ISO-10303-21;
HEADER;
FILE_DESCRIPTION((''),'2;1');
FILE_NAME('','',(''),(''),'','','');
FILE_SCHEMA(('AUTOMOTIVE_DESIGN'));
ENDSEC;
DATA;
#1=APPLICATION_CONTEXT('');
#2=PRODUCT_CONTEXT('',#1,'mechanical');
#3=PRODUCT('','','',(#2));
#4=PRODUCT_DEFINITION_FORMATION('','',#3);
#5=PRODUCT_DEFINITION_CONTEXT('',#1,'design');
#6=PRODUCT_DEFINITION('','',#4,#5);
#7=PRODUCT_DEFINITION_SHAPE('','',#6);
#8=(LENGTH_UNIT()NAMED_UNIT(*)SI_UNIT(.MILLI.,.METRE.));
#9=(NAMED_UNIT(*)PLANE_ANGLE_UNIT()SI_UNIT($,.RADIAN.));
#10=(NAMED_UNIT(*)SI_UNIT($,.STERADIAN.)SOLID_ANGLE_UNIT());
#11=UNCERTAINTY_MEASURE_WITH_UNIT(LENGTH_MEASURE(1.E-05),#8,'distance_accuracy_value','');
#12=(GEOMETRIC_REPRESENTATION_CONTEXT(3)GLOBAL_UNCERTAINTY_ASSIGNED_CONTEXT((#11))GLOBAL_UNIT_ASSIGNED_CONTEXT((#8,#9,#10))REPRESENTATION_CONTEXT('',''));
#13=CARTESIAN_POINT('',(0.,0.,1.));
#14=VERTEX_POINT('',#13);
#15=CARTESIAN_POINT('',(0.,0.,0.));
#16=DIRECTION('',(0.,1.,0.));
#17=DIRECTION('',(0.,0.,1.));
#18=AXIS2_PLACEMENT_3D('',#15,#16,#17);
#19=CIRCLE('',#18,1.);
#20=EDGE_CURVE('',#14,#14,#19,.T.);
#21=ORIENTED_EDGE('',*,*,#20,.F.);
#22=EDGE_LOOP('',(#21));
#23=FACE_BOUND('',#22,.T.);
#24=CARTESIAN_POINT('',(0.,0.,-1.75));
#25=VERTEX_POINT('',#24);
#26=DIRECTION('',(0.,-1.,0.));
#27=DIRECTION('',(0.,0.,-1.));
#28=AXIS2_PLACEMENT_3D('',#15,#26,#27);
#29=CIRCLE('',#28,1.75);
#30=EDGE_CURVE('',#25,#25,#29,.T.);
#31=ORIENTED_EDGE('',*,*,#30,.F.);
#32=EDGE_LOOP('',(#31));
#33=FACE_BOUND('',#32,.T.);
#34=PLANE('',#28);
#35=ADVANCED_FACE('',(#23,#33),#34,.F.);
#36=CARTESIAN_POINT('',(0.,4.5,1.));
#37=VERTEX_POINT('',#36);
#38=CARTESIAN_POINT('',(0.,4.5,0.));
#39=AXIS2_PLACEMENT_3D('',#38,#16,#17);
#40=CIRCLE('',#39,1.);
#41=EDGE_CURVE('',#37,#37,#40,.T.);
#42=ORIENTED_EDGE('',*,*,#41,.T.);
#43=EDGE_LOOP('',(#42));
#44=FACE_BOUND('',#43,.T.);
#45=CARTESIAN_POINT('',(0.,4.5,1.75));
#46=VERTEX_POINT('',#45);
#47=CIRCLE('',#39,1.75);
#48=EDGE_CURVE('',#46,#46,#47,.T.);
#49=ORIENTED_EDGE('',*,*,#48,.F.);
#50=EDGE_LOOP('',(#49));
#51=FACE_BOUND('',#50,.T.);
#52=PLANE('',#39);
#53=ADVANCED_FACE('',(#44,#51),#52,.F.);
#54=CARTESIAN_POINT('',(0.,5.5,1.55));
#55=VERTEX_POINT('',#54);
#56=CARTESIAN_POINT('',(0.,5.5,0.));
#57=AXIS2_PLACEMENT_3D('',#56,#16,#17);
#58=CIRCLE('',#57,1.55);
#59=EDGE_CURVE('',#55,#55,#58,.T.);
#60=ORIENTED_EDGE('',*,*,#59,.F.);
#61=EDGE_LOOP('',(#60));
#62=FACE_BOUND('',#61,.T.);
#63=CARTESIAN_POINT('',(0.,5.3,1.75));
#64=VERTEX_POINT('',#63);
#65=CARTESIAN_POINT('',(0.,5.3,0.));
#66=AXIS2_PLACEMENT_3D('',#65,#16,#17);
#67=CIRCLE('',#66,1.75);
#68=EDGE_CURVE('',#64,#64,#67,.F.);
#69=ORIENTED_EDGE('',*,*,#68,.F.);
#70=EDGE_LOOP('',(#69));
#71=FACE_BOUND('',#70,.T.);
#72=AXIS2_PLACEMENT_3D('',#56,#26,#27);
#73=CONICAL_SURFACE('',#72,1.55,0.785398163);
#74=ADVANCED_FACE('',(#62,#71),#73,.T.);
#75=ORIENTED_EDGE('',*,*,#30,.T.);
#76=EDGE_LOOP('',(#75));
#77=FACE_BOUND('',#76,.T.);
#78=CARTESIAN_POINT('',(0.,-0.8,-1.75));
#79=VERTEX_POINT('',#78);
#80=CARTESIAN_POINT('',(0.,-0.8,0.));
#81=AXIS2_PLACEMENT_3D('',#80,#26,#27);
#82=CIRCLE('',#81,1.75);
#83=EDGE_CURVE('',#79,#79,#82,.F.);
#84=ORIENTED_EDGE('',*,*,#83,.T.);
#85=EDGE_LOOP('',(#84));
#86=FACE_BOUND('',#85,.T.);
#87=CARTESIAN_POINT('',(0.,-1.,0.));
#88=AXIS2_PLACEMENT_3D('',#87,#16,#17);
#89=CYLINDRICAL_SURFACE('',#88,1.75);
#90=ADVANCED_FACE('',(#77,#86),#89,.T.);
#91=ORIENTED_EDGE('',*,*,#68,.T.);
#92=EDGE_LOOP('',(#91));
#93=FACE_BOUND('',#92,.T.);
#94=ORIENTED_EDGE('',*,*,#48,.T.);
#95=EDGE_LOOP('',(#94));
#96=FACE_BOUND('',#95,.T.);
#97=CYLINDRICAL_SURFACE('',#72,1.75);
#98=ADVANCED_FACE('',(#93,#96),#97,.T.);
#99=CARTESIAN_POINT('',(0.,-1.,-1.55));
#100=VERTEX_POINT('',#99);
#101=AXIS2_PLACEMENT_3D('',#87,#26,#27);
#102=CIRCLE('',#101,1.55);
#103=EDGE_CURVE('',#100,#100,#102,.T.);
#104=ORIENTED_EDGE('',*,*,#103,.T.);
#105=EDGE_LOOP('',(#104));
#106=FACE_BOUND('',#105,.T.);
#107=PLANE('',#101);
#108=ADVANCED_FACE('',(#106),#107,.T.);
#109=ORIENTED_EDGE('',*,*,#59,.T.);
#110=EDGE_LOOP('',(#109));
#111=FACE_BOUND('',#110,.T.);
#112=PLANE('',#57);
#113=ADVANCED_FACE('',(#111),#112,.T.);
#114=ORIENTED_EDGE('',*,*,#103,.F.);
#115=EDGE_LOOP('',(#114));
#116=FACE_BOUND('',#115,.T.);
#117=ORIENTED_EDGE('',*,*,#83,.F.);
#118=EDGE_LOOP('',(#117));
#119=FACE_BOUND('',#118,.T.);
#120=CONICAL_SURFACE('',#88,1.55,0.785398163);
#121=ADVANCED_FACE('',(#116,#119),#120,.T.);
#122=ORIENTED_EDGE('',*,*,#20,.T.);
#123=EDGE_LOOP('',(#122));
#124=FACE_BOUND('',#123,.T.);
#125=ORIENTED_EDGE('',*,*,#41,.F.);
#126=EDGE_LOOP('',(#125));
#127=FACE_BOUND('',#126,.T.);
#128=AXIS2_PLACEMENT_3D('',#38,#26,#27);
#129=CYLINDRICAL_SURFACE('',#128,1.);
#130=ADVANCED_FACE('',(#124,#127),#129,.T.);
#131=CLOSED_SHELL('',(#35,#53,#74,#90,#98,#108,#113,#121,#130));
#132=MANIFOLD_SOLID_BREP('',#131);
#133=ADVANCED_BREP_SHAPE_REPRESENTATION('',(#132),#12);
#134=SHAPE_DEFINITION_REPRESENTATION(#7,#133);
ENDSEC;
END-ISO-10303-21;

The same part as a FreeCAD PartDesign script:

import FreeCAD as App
import Part
import Sketcher
Q = App.Units.Quantity


def edges_at(feature, points):
    """Names of the edges that pass closest to the given points."""
    edges = feature.Shape.Edges
    near = lambda p: min(range(len(edges)), key=lambda i: edges[i].distToShape(Part.Vertex(*p))[0])
    return sorted({f"Edge{near(p) + 1}" for p in points})

doc = App.newDocument("Part")
body = doc.addObject("PartDesign::Body", "Body")

sketch1 = doc.addObject("Sketcher::SketchObject", "Sketch")
body.addObject(sketch1)
sketch1.AttachmentSupport = (doc.XZ_Plane, [""])
sketch1.MapMode = "FlatFace"
sketch1.addGeometry(Part.Circle(App.Vector(0, 0, 0), App.Vector(0, 0, 1), 1), False)
sketch1.addConstraint(Sketcher.Constraint("Coincident", 0, 3, -1, 1))
sketch1.addConstraint(Sketcher.Constraint("Diameter", 0, Q("2 mm")))
pad1 = doc.addObject("PartDesign::Pad", "Pad")
body.addObject(pad1)
pad1.Profile = sketch1
pad1.Length = 4.5
pad1.Reversed = True

sketch2 = doc.addObject("Sketcher::SketchObject", "Sketch001")
body.addObject(sketch2)
sketch2.AttachmentSupport = (doc.XZ_Plane, [""])
sketch2.MapMode = "FlatFace"
sketch2.AttachmentOffset = App.Placement(App.Vector(0, 0, -4.5), App.Rotation())
sketch2.addGeometry(Part.Circle(App.Vector(0, 0, 0), App.Vector(0, 0, 1), 1.75), False)
sketch2.addConstraint(Sketcher.Constraint("Coincident", 0, 3, -1, 1))
sketch2.addConstraint(Sketcher.Constraint("Diameter", 0, Q("3.5 mm")))
pad2 = doc.addObject("PartDesign::Pad", "Pad001")
body.addObject(pad2)
pad2.Profile = sketch2
pad2.Length = 1
pad2.Reversed = True
doc.recompute()

chamfer = doc.addObject("PartDesign::Chamfer", "Chamfer")
body.addObject(chamfer)
chamfer.Base = (pad2, edges_at(pad2, [(-1.75, 5.5, 0)]))
chamfer.Size = 0.2

sketch3 = doc.addObject("Sketcher::SketchObject", "Sketch002")
body.addObject(sketch3)
sketch3.AttachmentSupport = (doc.XZ_Plane, [""])
sketch3.MapMode = "FlatFace"
sketch3.addGeometry(Part.Circle(App.Vector(0, 0, 0), App.Vector(0, 0, 1), 1.75), False)
sketch3.addConstraint(Sketcher.Constraint("Coincident", 0, 3, -1, 1))
sketch3.addConstraint(Sketcher.Constraint("Diameter", 0, Q("3.5 mm")))
pad3 = doc.addObject("PartDesign::Pad", "Pad002")
body.addObject(pad3)
pad3.Profile = sketch3
pad3.Length = 1
doc.recompute()

chamfer2 = doc.addObject("PartDesign::Chamfer", "Chamfer001")
body.addObject(chamfer2)
chamfer2.Base = (pad3, edges_at(pad3, [(-1.75, -1, 0)]))
chamfer2.Size = 0.2

doc.recompute()
